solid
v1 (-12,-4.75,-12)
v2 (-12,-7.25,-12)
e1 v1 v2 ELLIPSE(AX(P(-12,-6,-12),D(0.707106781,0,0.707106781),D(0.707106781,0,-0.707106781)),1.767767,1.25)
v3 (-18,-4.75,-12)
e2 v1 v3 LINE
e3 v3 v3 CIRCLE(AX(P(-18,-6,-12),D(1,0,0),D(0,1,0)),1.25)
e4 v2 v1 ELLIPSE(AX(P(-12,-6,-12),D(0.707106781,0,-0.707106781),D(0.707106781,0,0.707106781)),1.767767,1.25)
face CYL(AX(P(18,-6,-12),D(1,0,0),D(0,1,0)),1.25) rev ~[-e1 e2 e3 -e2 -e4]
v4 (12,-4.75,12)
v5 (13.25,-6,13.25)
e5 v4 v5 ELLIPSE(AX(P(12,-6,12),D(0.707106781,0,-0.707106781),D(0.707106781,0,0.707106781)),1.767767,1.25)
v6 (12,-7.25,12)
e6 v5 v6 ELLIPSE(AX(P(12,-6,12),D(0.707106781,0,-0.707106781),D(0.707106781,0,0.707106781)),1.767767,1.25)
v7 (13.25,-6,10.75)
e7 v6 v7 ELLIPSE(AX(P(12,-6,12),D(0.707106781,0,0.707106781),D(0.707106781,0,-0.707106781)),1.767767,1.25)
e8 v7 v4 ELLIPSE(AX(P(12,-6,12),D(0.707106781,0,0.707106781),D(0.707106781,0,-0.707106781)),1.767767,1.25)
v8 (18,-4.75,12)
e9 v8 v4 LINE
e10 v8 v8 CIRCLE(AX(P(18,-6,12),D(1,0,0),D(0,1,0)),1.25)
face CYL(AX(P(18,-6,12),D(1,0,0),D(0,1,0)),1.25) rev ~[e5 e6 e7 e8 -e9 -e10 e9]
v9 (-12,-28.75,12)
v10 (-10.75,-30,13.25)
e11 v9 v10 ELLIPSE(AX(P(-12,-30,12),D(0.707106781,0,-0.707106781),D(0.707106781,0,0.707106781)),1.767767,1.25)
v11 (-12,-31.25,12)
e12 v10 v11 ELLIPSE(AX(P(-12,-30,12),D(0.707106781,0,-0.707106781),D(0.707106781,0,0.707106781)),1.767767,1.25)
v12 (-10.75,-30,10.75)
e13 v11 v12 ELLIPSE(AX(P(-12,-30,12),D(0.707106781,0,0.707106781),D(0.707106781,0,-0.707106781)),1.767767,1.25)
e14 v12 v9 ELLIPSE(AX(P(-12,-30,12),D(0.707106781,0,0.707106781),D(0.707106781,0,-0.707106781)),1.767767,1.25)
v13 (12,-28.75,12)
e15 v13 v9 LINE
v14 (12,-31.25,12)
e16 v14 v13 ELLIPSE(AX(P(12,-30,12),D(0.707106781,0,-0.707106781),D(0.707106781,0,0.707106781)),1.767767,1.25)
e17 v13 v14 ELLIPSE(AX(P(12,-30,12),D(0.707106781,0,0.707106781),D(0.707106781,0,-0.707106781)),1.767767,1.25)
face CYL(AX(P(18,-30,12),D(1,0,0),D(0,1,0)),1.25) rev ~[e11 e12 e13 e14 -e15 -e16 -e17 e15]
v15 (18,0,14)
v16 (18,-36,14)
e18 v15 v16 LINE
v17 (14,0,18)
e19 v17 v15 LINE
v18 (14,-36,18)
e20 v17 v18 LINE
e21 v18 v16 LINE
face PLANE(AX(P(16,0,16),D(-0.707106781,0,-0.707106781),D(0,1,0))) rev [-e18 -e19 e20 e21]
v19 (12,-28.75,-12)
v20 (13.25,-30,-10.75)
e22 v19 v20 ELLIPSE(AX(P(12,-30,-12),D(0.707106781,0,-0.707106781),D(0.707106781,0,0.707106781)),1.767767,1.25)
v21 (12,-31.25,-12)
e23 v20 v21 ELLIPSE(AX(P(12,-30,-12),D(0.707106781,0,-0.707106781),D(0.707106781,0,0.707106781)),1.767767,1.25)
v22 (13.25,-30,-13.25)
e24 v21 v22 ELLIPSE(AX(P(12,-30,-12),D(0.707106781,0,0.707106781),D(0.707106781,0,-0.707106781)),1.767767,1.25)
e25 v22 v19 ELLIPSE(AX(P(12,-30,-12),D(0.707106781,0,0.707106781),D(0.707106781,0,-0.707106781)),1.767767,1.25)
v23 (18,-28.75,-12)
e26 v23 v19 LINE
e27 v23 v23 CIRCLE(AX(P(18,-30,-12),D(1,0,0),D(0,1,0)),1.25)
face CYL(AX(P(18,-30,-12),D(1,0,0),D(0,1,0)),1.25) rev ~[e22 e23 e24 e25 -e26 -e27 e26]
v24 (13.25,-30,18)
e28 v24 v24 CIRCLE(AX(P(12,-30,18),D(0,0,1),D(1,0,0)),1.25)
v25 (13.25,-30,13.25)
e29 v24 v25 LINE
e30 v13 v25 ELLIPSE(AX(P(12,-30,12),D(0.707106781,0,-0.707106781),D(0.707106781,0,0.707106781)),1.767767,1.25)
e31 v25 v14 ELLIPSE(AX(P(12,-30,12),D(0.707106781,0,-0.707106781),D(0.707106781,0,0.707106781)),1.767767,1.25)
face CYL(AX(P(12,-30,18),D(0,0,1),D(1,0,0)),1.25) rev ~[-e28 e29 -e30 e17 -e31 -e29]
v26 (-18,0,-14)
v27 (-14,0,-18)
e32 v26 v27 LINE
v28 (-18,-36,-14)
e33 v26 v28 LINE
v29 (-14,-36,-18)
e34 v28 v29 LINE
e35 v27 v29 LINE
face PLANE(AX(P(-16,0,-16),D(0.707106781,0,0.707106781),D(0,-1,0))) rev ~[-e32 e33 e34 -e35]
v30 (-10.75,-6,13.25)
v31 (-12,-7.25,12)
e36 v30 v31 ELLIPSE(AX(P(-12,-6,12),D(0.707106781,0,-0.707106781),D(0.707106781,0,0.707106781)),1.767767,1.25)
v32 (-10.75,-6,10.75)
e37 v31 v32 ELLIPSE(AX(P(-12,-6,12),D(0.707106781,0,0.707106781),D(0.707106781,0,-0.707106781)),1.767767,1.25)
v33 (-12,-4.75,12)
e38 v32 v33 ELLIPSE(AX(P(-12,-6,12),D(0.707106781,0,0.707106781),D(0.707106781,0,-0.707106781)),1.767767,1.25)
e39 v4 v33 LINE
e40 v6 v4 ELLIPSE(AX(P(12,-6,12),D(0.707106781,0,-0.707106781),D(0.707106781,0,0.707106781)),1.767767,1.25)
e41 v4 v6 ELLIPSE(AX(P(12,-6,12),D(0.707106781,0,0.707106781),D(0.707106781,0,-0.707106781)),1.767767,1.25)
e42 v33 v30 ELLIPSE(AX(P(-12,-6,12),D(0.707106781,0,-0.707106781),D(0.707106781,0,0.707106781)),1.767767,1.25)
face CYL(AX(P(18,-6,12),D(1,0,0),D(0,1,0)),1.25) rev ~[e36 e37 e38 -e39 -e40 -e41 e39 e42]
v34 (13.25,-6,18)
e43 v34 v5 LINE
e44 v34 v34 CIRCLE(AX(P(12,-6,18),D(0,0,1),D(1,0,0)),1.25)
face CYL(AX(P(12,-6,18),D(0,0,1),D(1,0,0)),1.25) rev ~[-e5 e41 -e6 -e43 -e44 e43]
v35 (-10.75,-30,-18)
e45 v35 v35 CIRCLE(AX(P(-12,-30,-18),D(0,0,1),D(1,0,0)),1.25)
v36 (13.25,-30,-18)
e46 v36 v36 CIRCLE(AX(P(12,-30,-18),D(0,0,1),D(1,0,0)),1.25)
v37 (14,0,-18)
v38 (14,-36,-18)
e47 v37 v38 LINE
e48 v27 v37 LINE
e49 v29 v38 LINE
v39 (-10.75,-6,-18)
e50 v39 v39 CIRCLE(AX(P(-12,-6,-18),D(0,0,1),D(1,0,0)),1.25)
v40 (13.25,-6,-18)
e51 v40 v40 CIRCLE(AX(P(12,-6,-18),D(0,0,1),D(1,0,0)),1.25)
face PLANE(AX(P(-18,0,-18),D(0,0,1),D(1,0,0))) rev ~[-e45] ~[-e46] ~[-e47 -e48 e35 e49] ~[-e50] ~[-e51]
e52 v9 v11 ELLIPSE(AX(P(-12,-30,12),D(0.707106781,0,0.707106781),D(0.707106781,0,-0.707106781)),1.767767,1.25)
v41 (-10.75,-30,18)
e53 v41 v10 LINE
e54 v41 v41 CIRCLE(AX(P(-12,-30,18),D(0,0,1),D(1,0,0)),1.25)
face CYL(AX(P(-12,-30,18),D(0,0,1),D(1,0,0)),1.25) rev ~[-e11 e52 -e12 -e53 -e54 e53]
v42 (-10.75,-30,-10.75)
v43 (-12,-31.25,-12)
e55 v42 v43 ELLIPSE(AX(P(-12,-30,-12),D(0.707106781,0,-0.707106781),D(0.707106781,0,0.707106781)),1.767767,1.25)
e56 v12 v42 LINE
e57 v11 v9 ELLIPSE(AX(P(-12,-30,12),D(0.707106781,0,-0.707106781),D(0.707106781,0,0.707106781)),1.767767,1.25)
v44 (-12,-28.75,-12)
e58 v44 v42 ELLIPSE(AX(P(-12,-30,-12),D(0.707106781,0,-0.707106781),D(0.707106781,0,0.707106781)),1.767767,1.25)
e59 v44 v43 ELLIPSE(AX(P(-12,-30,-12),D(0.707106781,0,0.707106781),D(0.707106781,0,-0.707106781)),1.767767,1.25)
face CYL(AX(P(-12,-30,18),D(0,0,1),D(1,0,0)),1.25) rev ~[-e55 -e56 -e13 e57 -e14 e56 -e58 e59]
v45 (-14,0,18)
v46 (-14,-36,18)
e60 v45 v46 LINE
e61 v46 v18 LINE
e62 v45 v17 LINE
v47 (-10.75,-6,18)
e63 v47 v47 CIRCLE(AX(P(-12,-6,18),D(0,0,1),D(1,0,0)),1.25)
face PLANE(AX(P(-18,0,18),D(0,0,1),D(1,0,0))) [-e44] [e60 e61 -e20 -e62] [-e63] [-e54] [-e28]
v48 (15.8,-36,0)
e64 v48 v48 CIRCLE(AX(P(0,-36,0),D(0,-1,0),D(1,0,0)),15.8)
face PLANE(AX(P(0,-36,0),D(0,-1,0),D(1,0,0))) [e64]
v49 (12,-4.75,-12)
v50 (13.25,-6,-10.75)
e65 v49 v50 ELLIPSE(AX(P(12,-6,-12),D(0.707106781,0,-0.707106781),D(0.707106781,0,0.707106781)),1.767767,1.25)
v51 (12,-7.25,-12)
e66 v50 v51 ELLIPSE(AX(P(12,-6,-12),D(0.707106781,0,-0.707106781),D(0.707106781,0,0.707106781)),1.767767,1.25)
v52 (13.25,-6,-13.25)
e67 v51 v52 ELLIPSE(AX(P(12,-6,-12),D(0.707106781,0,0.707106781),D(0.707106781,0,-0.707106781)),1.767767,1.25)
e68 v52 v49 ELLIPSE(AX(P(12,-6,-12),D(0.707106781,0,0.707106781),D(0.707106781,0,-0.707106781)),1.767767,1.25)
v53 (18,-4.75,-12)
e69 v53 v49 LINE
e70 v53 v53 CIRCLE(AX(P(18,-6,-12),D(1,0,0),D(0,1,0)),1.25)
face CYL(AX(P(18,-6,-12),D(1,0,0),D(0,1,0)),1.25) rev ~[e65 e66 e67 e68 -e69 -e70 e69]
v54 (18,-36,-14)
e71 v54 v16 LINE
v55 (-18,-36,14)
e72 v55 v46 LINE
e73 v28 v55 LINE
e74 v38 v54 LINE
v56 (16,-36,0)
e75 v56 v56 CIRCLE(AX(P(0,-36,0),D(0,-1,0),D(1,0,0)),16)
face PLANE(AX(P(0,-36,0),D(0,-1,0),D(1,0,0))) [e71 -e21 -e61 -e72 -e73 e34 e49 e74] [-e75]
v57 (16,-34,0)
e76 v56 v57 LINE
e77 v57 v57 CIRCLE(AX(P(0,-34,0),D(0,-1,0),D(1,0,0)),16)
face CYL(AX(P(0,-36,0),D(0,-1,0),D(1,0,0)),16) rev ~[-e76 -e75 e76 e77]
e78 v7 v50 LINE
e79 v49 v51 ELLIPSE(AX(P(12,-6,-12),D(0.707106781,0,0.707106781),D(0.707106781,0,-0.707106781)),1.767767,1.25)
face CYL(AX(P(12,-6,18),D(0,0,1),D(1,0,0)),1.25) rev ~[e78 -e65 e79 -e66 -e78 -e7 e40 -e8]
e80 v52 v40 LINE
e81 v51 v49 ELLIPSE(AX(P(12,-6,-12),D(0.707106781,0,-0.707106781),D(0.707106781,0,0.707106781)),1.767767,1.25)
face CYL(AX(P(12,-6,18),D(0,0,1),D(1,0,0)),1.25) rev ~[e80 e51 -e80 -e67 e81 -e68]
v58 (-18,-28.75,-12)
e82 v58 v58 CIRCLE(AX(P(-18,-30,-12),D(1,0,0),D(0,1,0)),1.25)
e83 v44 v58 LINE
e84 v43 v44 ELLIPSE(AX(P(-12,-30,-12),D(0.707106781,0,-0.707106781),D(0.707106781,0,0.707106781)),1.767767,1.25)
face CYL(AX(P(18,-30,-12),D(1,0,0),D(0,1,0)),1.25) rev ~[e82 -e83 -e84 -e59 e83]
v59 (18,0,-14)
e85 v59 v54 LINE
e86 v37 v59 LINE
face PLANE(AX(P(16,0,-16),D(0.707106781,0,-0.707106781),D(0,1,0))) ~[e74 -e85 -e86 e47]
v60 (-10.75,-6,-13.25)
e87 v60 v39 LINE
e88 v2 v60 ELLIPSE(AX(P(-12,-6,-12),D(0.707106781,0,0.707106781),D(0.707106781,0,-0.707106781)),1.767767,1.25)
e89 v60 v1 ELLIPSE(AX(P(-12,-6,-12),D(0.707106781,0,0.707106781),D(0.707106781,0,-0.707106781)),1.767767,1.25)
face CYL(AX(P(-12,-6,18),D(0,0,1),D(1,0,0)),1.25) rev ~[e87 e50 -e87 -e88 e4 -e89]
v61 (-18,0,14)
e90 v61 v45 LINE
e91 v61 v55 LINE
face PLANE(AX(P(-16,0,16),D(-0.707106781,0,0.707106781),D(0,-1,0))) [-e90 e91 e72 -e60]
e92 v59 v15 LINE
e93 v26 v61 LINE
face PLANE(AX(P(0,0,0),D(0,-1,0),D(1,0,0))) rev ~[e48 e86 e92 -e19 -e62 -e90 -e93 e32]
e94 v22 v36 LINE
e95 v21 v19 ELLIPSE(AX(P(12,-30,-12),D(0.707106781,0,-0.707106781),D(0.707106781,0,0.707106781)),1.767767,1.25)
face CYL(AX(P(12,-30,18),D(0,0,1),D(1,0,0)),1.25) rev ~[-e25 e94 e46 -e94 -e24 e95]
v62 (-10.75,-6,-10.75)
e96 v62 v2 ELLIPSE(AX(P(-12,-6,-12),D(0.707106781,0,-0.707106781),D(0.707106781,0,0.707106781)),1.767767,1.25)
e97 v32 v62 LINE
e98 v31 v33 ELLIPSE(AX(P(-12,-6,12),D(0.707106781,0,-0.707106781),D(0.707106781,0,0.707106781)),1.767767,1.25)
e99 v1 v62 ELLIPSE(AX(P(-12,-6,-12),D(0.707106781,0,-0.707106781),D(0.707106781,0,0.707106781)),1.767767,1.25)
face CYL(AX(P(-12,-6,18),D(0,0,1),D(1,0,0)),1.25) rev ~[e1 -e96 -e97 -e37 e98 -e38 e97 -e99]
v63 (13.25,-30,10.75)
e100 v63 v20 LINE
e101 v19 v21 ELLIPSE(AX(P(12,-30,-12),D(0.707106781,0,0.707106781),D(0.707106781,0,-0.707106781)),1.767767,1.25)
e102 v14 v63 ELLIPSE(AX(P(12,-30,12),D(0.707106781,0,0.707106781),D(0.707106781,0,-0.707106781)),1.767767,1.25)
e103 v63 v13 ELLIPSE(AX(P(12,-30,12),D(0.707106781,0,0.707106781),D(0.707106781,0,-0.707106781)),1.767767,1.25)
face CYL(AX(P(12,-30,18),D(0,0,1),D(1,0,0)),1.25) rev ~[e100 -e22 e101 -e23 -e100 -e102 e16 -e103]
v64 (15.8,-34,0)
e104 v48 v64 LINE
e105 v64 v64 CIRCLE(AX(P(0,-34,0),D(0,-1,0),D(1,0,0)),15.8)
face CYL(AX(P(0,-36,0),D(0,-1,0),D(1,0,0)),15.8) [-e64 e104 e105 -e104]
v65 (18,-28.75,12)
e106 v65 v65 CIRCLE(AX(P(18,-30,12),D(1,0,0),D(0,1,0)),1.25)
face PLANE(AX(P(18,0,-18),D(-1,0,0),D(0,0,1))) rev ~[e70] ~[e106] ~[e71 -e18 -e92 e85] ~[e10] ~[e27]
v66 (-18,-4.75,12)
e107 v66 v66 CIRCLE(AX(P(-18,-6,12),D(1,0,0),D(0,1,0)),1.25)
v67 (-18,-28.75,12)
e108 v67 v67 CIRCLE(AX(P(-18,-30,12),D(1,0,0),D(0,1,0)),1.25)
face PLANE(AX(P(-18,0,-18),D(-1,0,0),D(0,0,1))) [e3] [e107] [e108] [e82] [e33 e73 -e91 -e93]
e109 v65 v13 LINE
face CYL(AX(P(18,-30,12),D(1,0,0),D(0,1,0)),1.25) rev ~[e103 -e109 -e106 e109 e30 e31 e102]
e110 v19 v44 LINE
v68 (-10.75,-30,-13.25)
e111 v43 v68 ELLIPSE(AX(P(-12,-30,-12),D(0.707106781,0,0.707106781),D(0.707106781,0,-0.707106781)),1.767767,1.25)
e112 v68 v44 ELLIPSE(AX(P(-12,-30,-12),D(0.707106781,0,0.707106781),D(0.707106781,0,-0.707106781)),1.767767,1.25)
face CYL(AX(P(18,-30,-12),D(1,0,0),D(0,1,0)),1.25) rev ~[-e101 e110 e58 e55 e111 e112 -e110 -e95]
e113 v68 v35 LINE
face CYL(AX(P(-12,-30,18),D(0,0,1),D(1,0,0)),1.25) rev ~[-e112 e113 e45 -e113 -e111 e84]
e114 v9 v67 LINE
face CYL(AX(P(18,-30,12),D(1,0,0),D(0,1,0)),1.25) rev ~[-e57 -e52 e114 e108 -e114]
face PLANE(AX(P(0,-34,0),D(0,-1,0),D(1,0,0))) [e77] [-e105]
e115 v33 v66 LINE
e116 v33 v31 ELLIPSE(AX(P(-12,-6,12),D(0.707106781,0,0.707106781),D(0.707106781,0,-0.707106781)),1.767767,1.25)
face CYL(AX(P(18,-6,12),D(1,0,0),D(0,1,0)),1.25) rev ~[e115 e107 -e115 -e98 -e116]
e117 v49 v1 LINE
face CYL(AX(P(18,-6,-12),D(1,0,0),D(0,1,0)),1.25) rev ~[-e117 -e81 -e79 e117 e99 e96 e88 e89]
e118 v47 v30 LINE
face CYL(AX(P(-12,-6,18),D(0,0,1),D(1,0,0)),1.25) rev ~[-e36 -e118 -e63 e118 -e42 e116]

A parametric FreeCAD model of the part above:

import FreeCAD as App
import Part
import Sketcher

V = App.Vector
Q = App.Units.Quantity


def edges_at(feature, points):
    """Names of the edges that pass closest to the given points."""
    edges = feature.Shape.Edges
    near = lambda p: min(range(len(edges)), key=lambda i: edges[i].distToShape(Part.Vertex(*p))[0])
    return sorted({f"Edge{near(p) + 1}" for p in points})

doc = App.newDocument("Part")
params = doc.addObject("Spreadsheet::Sheet", "Params")
for row, (alias, value) in enumerate([
    ("sketch1_width", "36 mm"),
    ("pad1_length", "36 mm"),
    ("sketch2_diameter", "32 mm"),
    ("sketch2_diameter2", "31.6 mm"),
    ("pocket1_length", "2 mm"),
    ("sketch3_diameter", "2.5 mm"),
    ("sketch4_diameter", "2.5 mm"),
    ("chamfer_size", "4 mm"),
], start=1):
    params.set(f"A{row}", alias)
    params.set(f"B{row}", "=" + value)
    params.setAlias(f"B{row}", alias)

body = doc.addObject("PartDesign::Body", "Body")

# Sketch on XZ plane
sketch1 = body.newObject("Sketcher::SketchObject", "Sketch")
sketch1.AttachmentSupport = (doc.getObject("XZ_Plane"), [""])
sketch1.MapMode = "FlatFace"
sketch1.addGeometry(Part.LineSegment(V(-18, 18, 0), V(-18, -18, 0)), False)
sketch1.addGeometry(Part.LineSegment(V(-18, -18, 0), V(18, -18, 0)), False)
sketch1.addGeometry(Part.LineSegment(V(18, -18, 0), V(18, 18, 0)), False)
sketch1.addGeometry(Part.LineSegment(V(18, 18, 0), V(-18, 18, 0)), False)
sketch1.addConstraint(Sketcher.Constraint("Coincident", 0, 2, 1, 1))
sketch1.addConstraint(Sketcher.Constraint("Coincident", 1, 2, 2, 1))
sketch1.addConstraint(Sketcher.Constraint("Coincident", 2, 2, 3, 1))
sketch1.addConstraint(Sketcher.Constraint("Coincident", 3, 2, 0, 1))
sketch1.addConstraint(Sketcher.Constraint("Vertical", 0))
sketch1.addConstraint(Sketcher.Constraint("Horizontal", 1))
sketch1.addConstraint(Sketcher.Constraint("Vertical", 2))
sketch1.addConstraint(Sketcher.Constraint("Horizontal", 3))
sketch1.addConstraint(Sketcher.Constraint("Symmetric", 0, 2, 2, 2, -1, 1))
sketch1.addConstraint(Sketcher.Constraint("Equal", 3, 0))
sketch1.addConstraint(Sketcher.Constraint("DistanceX", 1, 1, 1, 2, Q("36 mm")))
sketch1.setExpression("Constraints[10]", "Params.sketch1_width")
pad1 = body.newObject("PartDesign::Pad", "Pad")
pad1.Profile = sketch1
pad1.setExpression("Length", "Params.pad1_length")

# Sketch on XZ plane
sketch2 = body.newObject("Sketcher::SketchObject", "Sketch001")
sketch2.AttachmentSupport = (doc.getObject("XZ_Plane"), [""])
sketch2.MapMode = "FlatFace"
sketch2.AttachmentOffset = App.Placement(V(0, 0, 36), App.Rotation())
sketch2.addGeometry(Part.Circle(V(0, 0, 0), V(0, 0, 1), 16), False)
sketch2.addGeometry(Part.Circle(V(0, 0, 0), V(0, 0, 1), 16), False)
sketch2.addConstraint(Sketcher.Constraint("Coincident", 0, 3, -1, 1))
sketch2.addConstraint(Sketcher.Constraint("Coincident", 1, 3, -1, 1))
sketch2.addConstraint(Sketcher.Constraint("Diameter", 0, Q("32 mm")))
sketch2.addConstraint(Sketcher.Constraint("Diameter", 1, Q("31.6 mm")))
sketch2.setExpression("Constraints[2]", "Params.sketch2_diameter")
sketch2.setExpression("Constraints[3]", "Params.sketch2_diameter2")
pocket1 = body.newObject("PartDesign::Pocket", "Pocket")
pocket1.Profile = sketch2
pocket1.setExpression("Length", "Params.pocket1_length")

# Sketch on YZ plane
sketch3 = body.newObject("Sketcher::SketchObject", "Sketch002")
sketch3.AttachmentSupport = (doc.getObject("YZ_Plane"), [""])
sketch3.MapMode = "FlatFace"
sketch3.AttachmentOffset = App.Placement(V(0, 0, 18), App.Rotation())
sketch3.addGeometry(Part.Circle(V(-30, 12, 0), V(0, 0, 1), 1.2), False)
sketch3.addGeometry(Part.Circle(V(-6, 12, 0), V(0, 0, 1), 1.2), False)
sketch3.addGeometry(Part.Circle(V(-6, -12, 0), V(0, 0, 1), 1.2), False)
sketch3.addGeometry(Part.Circle(V(-30, -12, 0), V(0, 0, 1), 1.2), False)
sketch3.addConstraint(Sketcher.Constraint("Equal", 0, 1))
sketch3.addConstraint(Sketcher.Constraint("Equal", 1, 2))
sketch3.addConstraint(Sketcher.Constraint("Equal", 2, 3))
sketch3.addConstraint(Sketcher.Constraint("Symmetric", 1, 3, 2, 3, -1))
sketch3.addConstraint(Sketcher.Constraint("Symmetric", 0, 3, 3, 3, -1))
sketch3.addConstraint(Sketcher.Constraint("Horizontal", 0, 3, 1, 3))
sketch3.addConstraint(Sketcher.Constraint("Diameter", 0, Q("2.5 mm")))
sketch3.addConstraint(Sketcher.Constraint("DistanceX", 0, 3, -1, 1, Q("30 mm")))
sketch3.addConstraint(Sketcher.Constraint("DistanceY", -1, 1, 0, 3, Q("12 mm")))
sketch3.addConstraint(Sketcher.Constraint("DistanceX", 1, 3, -1, 1, Q("6 mm")))
sketch3.setExpression("Constraints[6]", "Params.sketch3_diameter")
pocket2 = body.newObject("PartDesign::Pocket", "Pocket001")
pocket2.Profile = sketch3
pocket2.Type = "ThroughAll"

# Sketch on XY plane
sketch4 = body.newObject("Sketcher::SketchObject", "Sketch003")
sketch4.AttachmentSupport = (doc.getObject("XY_Plane"), [""])
sketch4.MapMode = "FlatFace"
sketch4.AttachmentOffset = App.Placement(V(0, 0, 18), App.Rotation())
sketch4.addGeometry(Part.Circle(V(-12, -30, 0), V(0, 0, 1), 1.2), False)
sketch4.addGeometry(Part.Circle(V(-12, -6, 0), V(0, 0, 1), 1.2), False)
sketch4.addGeometry(Part.Circle(V(12, -6, 0), V(0, 0, 1), 1.2), False)
sketch4.addGeometry(Part.Circle(V(12, -30, 0), V(0, 0, 1), 1.2), False)
sketch4.addConstraint(Sketcher.Constraint("Equal", 0, 1))
sketch4.addConstraint(Sketcher.Constraint("Equal", 1, 2))
sketch4.addConstraint(Sketcher.Constraint("Equal", 2, 3))
sketch4.addConstraint(Sketcher.Constraint("Symmetric", 1, 3, 2, 3, -2))
sketch4.addConstraint(Sketcher.Constraint("Symmetric", 0, 3, 3, 3, -2))
sketch4.addConstraint(Sketcher.Constraint("Vertical", 0, 3, 1, 3))
sketch4.addConstraint(Sketcher.Constraint("Diameter", 0, Q("2.5 mm")))
sketch4.addConstraint(Sketcher.Constraint("DistanceX", 0, 3, -1, 1, Q("12 mm")))
sketch4.addConstraint(Sketcher.Constraint("DistanceY", 0, 3, -1, 1, Q("30 mm")))
sketch4.addConstraint(Sketcher.Constraint("DistanceY", 1, 3, -1, 1, Q("6 mm")))
sketch4.setExpression("Constraints[6]", "Params.sketch4_diameter")
pocket3 = body.newObject("PartDesign::Pocket", "Pocket002")
pocket3.Profile = sketch4
pocket3.Type = "ThroughAll"
doc.recompute()

chamfer = body.newObject("PartDesign::Chamfer", "Chamfer")
chamfer.Base = (pocket3, edges_at(pocket3, [
    (18, -18, 18),
    (-18, -18, 18),
    (18, -18, -18),
    (-18, -18, -18),
]))
chamfer.setExpression("Size", "Params.chamfer_size")

doc.recompute()
